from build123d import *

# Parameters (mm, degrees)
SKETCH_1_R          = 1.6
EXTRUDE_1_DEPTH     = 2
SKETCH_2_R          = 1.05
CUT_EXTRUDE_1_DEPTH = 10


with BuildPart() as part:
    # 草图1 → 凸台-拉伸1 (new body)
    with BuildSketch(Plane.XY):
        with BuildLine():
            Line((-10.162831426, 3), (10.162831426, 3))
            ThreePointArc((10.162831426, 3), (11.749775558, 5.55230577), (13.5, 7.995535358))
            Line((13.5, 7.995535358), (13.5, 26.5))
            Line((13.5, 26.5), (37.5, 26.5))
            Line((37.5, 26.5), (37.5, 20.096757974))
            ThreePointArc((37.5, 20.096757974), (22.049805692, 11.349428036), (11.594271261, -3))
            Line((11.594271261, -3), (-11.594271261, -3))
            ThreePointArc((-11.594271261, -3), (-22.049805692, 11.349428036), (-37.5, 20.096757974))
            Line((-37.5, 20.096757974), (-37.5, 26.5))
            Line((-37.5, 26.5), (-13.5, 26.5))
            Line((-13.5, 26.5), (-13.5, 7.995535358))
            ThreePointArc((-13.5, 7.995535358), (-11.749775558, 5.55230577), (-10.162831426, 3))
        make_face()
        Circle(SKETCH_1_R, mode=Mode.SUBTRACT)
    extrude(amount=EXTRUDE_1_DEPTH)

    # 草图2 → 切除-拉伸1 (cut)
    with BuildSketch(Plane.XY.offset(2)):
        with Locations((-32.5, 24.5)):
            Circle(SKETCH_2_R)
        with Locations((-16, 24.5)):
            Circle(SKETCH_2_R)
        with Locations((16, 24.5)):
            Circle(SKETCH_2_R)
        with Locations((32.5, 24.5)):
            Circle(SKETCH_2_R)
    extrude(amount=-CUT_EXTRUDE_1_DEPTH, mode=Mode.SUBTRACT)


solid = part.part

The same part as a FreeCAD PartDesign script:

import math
import FreeCAD as App
import Part
import Sketcher

V = App.Vector
Q = App.Units.Quantity

doc = App.newDocument("Part")
body = doc.addObject("PartDesign::Body", "Body")

# Sketch on XY plane
sketch1 = body.newObject("Sketcher::SketchObject", "Sketch")
sketch1.AttachmentSupport = (doc.getObject("XY_Plane"), [""])
sketch1.MapMode = "FlatFace"
sketch1.addGeometry([
    Part.LineSegment(V(10.2, 3, 0), V(-10.2, 3, 0)),  # 0
    Part.ArcOfCircle(Part.Circle(V(-50, -20, 0), V(0, 0, 1), 46), math.radians(30), math.radians(37.49)),  # 1
    Part.LineSegment(V(-13.5, 8, 0), V(-13.5, 26.5, 0)),  # 2
    Part.LineSegment(V(-13.5, 26.5, 0), V(-37.5, 26.5, 0)),  # 3
    Part.LineSegment(V(-37.5, 26.5, 0), V(-37.5, 20.1, 0)),  # 4
    Part.ArcOfCircle(Part.Circle(V(-50, -20, 0), V(0, 0, 1), 42), math.radians(24), math.radians(73)),  # 5
    Part.LineSegment(V(-11.6, -3, 0), V(11.6, -3, 0)),  # 6
    Part.ArcOfCircle(Part.Circle(V(50, -20, 0), V(0, 0, 1), 42), math.radians(107), math.radians(156)),  # 7
    Part.LineSegment(V(37.5, 20.1, 0), V(37.5, 26.5, 0)),  # 8
    Part.LineSegment(V(37.5, 26.5, 0), V(13.5, 26.5, 0)),  # 9
    Part.LineSegment(V(13.5, 26.5, 0), V(13.5, 8, 0)),  # 10
    Part.ArcOfCircle(Part.Circle(V(50, -20, 0), V(0, 0, 1), 46), math.radians(142.51), math.radians(150)),  # 11
    Part.Circle(V(0, 0, 0), V(0, 0, 1), 1.6),  # 12
], False)
sketch1.addConstraint([
    Sketcher.Constraint("Coincident", 0, 2, 1, 1),
    Sketcher.Constraint("Coincident", 1, 2, 2, 1),
    Sketcher.Constraint("Coincident", 2, 2, 3, 1),
    Sketcher.Constraint("Coincident", 3, 2, 4, 1),
    Sketcher.Constraint("Coincident", 4, 2, 5, 2),
    Sketcher.Constraint("Coincident", 5, 1, 6, 1),
    Sketcher.Constraint("Coincident", 6, 2, 7, 2),
    Sketcher.Constraint("Coincident", 7, 1, 8, 1),
    Sketcher.Constraint("Coincident", 8, 2, 9, 1),
    Sketcher.Constraint("Coincident", 9, 2, 10, 1),
    Sketcher.Constraint("Coincident", 10, 2, 11, 1),
    Sketcher.Constraint("Coincident", 11, 2, 0, 1),
    Sketcher.Constraint("Horizontal", 0),
    Sketcher.Constraint("Vertical", 2),
    Sketcher.Constraint("Horizontal", 3),
    Sketcher.Constraint("Vertical", 4),
    Sketcher.Constraint("Horizontal", 6),
    Sketcher.Constraint("Vertical", 8),
    Sketcher.Constraint("Horizontal", 9),
    Sketcher.Constraint("Vertical", 10),
    Sketcher.Constraint("Coincident", 12, 3, -1, 1),
    Sketcher.Constraint("Coincident", 5, 3, 1, 3),
    Sketcher.Constraint("Coincident", 11, 3, 7, 3),
    Sketcher.Constraint("Equal", 5, 7),
    Sketcher.Constraint("Equal", 1, 11),
    Sketcher.Constraint("Symmetric", 1, 3, 7, 3, -2),
    Sketcher.Constraint("Symmetric", 3, 2, 8, 2, -2),
    Sketcher.Constraint("Horizontal", 1, 2, 10, 2),
    Sketcher.Constraint("Radius", 1, Q("46 mm")),
    Sketcher.Constraint("Radius", 5, Q("42 mm")),
    Sketcher.Constraint("Diameter", 12, Q("3.2 mm")),
    Sketcher.Constraint("DistanceX", 3, 2, 3, 1, Q("24 mm")),
    Sketcher.Constraint("DistanceX", 1, 3, -1, 1, Q("50 mm")),
    Sketcher.Constraint("DistanceY", 1, 3, -1, 1, Q("20 mm")),
    Sketcher.Constraint("DistanceY", -1, 1, 0, 2, Q("3 mm")),
    Sketcher.Constraint("DistanceY", 5, 1, -1, 1, Q("3 mm")),
    Sketcher.Constraint("DistanceX", 2, 2, 9, 2, Q("27 mm")),
    Sketcher.Constraint("DistanceY", -1, 1, 2, 2, Q("26.5 mm")),
])
pad1 = body.newObject("PartDesign::Pad", "Pad")
pad1.Profile = sketch1
pad1.Length = 2

# Sketch on XY plane
sketch2 = body.newObject("Sketcher::SketchObject", "Sketch001")
sketch2.AttachmentSupport = (doc.getObject("XY_Plane"), [""])
sketch2.MapMode = "FlatFace"
sketch2.AttachmentOffset = App.Placement(V(0, 0, 2), App.Rotation())
sketch2.addGeometry([
    Part.Circle(V(-32.5, 24.5, 0), V(0, 0, 1), 1.1),
    Part.Circle(V(-16, 24.5, 0), V(0, 0, 1), 1.1),
    Part.Circle(V(16, 24.5, 0), V(0, 0, 1), 1.1),
    Part.Circle(V(32.5, 24.5, 0), V(0, 0, 1), 1.1),
], False)
sketch2.addConstraint([
    Sketcher.Constraint("Equal", 0, 1),
    Sketcher.Constraint("Equal", 1, 2),
    Sketcher.Constraint("Equal", 2, 3),
    Sketcher.Constraint("Symmetric", 1, 3, 2, 3, -2),
    Sketcher.Constraint("Symmetric", 0, 3, 3, 3, -2),
    Sketcher.Constraint("Horizontal", 0, 3, 1, 3),
    Sketcher.Constraint("Diameter", 0, Q("2.1 mm")),
    Sketcher.Constraint("DistanceX", 1, 3, -1, 1, Q("16 mm")),
    Sketcher.Constraint("DistanceX", 0, 3, 3, 3, Q("65 mm")),
    Sketcher.Constraint("DistanceY", -1, 1, 0, 3, Q("24.5 mm")),
])
pocket1 = body.newObject("PartDesign::Pocket", "Pocket")
pocket1.Profile = sketch2
pocket1.Length = 10

doc.recompute()
